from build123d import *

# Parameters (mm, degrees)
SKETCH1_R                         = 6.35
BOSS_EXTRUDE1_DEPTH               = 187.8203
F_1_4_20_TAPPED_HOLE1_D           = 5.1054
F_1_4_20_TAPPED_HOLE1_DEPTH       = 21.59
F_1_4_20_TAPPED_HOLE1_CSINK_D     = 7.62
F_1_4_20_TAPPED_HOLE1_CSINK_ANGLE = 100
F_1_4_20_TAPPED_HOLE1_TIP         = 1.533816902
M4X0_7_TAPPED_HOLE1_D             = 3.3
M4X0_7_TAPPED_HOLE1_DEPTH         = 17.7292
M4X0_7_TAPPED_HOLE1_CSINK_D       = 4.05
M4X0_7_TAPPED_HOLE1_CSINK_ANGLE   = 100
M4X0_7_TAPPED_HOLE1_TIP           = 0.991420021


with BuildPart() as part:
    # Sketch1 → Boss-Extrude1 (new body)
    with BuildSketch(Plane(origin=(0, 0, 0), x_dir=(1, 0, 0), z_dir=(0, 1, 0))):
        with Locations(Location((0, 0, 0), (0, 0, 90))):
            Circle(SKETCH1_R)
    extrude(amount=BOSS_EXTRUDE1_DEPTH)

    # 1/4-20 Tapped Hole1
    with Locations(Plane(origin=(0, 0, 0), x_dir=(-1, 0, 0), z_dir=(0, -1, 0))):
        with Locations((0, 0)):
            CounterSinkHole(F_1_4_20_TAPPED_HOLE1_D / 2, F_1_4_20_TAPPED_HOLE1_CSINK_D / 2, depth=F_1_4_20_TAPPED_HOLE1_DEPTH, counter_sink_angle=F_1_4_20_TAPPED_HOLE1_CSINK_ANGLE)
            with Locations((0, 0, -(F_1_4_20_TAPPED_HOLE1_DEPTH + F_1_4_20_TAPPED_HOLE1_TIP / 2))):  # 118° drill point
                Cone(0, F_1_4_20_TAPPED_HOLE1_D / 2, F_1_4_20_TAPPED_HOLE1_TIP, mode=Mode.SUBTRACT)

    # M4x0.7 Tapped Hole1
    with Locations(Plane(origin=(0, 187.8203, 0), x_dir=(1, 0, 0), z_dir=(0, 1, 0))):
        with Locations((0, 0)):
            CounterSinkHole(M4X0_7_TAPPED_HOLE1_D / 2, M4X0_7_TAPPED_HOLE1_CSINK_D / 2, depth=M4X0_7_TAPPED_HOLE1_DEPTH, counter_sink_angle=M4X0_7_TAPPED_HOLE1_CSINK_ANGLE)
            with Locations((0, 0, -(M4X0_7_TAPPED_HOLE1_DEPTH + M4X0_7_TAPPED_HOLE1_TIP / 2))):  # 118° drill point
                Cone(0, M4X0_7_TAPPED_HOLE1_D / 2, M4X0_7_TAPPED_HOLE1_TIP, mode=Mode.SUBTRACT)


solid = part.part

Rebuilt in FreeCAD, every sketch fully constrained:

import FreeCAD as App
import Part
import Sketcher

V = App.Vector
Q = App.Units.Quantity

doc = App.newDocument("Part")
body = doc.addObject("PartDesign::Body", "Body")

sketch1 = doc.addObject("Sketcher::SketchObject", "Sketch")
body.addObject(sketch1)
sketch1.AttachmentSupport = (doc.XZ_Plane, [""])
sketch1.MapMode = "FlatFace"
sketch1.addGeometry(Part.Circle(V(0, 0, 0), V(0, 0, 1), 6), False)
sketch1.addConstraint([
    Sketcher.Constraint("Coincident", 0, 3, -1, 1),
    Sketcher.Constraint("Diameter", 0, Q("0.5 in")),
])
pad1 = doc.addObject("PartDesign::Pad", "Pad")
body.addObject(pad1)
pad1.Profile = sketch1
pad1.Length = Q("7.3945 in")
pad1.Reversed = True

sketch2 = doc.addObject("Sketcher::SketchObject", "Sketch001")
body.addObject(sketch2)
sketch2.AttachmentSupport = (doc.XZ_Plane, [""])
sketch2.MapMode = "FlatFace"
sketch2.addGeometry(Part.Circle(V(0, 0, 0), V(0, 0, 1), 2.6), False)
sketch2.addConstraint([
    Sketcher.Constraint("Coincident", 0, 3, -1, 1),
    Sketcher.Constraint("Diameter", 0, Q("0.201 in")),
])
doc.recompute()
hole = doc.addObject("PartDesign::Hole", "Hole")
body.addObject(hole)
hole.Profile = sketch2
hole.ThreadType = "None"
hole.Diameter = Q("0.201 in")
hole.DepthType = "Dimension"
hole.Depth = Q("0.85 in")
hole.DrillPoint = "Angled"
hole.DrillPointAngle = 118
hole.HoleCutType = "Countersink"
hole.HoleCutDiameter = Q("0.3 in")
hole.HoleCutCountersinkAngle = 100

sketch3 = doc.addObject("Sketcher::SketchObject", "Sketch002")
body.addObject(sketch3)
sketch3.AttachmentSupport = (doc.XZ_Plane, [""])
sketch3.MapMode = "FlatFace"
sketch3.AttachmentOffset = App.Placement(V(0, 0, -7.3945 * 25.4), App.Rotation())
sketch3.addGeometry(Part.Circle(V(0, 0, 0), V(0, 0, 1), 1.6), False)
sketch3.addConstraint([
    Sketcher.Constraint("Coincident", 0, 3, -1, 1),
    Sketcher.Constraint("Diameter", 0, Q("3.3 mm")),
])
doc.recompute()
hole2 = doc.addObject("PartDesign::Hole", "Hole001")
body.addObject(hole2)
hole2.Profile = sketch3
hole2.ThreadType = "None"
hole2.Diameter = 3.3
hole2.DepthType = "Dimension"
hole2.Depth = Q("0.698 in")
hole2.DrillPoint = "Angled"
hole2.DrillPointAngle = 118
hole2.HoleCutType = "Countersink"
hole2.HoleCutDiameter = 4.05
hole2.HoleCutCountersinkAngle = 100
hole2.Reversed = True

doc.recompute()
